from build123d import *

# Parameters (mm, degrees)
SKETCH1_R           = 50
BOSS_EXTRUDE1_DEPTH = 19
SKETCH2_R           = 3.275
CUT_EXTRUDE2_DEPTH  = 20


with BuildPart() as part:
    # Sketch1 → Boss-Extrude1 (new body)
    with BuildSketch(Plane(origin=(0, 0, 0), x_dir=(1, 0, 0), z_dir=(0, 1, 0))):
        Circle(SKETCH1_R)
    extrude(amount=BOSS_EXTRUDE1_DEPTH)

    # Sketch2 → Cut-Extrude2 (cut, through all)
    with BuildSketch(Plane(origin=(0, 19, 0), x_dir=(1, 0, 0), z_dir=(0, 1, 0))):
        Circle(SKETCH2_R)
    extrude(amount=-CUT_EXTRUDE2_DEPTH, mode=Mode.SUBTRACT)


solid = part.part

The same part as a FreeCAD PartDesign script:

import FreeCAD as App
import Part
import Sketcher

V = App.Vector
Q = App.Units.Quantity

doc = App.newDocument("Part")
body = doc.addObject("PartDesign::Body", "Body")

# Sketch on XZ plane
sketch1 = body.newObject("Sketcher::SketchObject", "Sketch")
sketch1.AttachmentSupport = (doc.getObject("XZ_Plane"), [""])
sketch1.MapMode = "FlatFace"
sketch1.addGeometry(Part.Circle(V(0, 0, 0), V(0, 0, 1), 50), False)
sketch1.addConstraint(Sketcher.Constraint("Coincident", 0, 3, -1, 1))
sketch1.addConstraint(Sketcher.Constraint("Diameter", 0, Q("100 mm")))
pad1 = body.newObject("PartDesign::Pad", "Pad")
pad1.Profile = sketch1
pad1.Length = 19
pad1.Reversed = True

# Sketch on XZ plane
sketch2 = body.newObject("Sketcher::SketchObject", "Sketch001")
sketch2.AttachmentSupport = (doc.getObject("XZ_Plane"), [""])
sketch2.MapMode = "FlatFace"
sketch2.AttachmentOffset = App.Placement(V(0, 0, -19), App.Rotation())
sketch2.addGeometry(Part.Circle(V(0, 0, 0), V(0, 0, 1), 3.3), False)
sketch2.addConstraint(Sketcher.Constraint("Coincident", 0, 3, -1, 1))
sketch2.addConstraint(Sketcher.Constraint("Diameter", 0, Q("6.55 mm")))
pocket1 = body.newObject("PartDesign::Pocket", "Pocket")
pocket1.Profile = sketch2
pocket1.Type = "ThroughAll"
pocket1.Reversed = True

doc.recompute()
